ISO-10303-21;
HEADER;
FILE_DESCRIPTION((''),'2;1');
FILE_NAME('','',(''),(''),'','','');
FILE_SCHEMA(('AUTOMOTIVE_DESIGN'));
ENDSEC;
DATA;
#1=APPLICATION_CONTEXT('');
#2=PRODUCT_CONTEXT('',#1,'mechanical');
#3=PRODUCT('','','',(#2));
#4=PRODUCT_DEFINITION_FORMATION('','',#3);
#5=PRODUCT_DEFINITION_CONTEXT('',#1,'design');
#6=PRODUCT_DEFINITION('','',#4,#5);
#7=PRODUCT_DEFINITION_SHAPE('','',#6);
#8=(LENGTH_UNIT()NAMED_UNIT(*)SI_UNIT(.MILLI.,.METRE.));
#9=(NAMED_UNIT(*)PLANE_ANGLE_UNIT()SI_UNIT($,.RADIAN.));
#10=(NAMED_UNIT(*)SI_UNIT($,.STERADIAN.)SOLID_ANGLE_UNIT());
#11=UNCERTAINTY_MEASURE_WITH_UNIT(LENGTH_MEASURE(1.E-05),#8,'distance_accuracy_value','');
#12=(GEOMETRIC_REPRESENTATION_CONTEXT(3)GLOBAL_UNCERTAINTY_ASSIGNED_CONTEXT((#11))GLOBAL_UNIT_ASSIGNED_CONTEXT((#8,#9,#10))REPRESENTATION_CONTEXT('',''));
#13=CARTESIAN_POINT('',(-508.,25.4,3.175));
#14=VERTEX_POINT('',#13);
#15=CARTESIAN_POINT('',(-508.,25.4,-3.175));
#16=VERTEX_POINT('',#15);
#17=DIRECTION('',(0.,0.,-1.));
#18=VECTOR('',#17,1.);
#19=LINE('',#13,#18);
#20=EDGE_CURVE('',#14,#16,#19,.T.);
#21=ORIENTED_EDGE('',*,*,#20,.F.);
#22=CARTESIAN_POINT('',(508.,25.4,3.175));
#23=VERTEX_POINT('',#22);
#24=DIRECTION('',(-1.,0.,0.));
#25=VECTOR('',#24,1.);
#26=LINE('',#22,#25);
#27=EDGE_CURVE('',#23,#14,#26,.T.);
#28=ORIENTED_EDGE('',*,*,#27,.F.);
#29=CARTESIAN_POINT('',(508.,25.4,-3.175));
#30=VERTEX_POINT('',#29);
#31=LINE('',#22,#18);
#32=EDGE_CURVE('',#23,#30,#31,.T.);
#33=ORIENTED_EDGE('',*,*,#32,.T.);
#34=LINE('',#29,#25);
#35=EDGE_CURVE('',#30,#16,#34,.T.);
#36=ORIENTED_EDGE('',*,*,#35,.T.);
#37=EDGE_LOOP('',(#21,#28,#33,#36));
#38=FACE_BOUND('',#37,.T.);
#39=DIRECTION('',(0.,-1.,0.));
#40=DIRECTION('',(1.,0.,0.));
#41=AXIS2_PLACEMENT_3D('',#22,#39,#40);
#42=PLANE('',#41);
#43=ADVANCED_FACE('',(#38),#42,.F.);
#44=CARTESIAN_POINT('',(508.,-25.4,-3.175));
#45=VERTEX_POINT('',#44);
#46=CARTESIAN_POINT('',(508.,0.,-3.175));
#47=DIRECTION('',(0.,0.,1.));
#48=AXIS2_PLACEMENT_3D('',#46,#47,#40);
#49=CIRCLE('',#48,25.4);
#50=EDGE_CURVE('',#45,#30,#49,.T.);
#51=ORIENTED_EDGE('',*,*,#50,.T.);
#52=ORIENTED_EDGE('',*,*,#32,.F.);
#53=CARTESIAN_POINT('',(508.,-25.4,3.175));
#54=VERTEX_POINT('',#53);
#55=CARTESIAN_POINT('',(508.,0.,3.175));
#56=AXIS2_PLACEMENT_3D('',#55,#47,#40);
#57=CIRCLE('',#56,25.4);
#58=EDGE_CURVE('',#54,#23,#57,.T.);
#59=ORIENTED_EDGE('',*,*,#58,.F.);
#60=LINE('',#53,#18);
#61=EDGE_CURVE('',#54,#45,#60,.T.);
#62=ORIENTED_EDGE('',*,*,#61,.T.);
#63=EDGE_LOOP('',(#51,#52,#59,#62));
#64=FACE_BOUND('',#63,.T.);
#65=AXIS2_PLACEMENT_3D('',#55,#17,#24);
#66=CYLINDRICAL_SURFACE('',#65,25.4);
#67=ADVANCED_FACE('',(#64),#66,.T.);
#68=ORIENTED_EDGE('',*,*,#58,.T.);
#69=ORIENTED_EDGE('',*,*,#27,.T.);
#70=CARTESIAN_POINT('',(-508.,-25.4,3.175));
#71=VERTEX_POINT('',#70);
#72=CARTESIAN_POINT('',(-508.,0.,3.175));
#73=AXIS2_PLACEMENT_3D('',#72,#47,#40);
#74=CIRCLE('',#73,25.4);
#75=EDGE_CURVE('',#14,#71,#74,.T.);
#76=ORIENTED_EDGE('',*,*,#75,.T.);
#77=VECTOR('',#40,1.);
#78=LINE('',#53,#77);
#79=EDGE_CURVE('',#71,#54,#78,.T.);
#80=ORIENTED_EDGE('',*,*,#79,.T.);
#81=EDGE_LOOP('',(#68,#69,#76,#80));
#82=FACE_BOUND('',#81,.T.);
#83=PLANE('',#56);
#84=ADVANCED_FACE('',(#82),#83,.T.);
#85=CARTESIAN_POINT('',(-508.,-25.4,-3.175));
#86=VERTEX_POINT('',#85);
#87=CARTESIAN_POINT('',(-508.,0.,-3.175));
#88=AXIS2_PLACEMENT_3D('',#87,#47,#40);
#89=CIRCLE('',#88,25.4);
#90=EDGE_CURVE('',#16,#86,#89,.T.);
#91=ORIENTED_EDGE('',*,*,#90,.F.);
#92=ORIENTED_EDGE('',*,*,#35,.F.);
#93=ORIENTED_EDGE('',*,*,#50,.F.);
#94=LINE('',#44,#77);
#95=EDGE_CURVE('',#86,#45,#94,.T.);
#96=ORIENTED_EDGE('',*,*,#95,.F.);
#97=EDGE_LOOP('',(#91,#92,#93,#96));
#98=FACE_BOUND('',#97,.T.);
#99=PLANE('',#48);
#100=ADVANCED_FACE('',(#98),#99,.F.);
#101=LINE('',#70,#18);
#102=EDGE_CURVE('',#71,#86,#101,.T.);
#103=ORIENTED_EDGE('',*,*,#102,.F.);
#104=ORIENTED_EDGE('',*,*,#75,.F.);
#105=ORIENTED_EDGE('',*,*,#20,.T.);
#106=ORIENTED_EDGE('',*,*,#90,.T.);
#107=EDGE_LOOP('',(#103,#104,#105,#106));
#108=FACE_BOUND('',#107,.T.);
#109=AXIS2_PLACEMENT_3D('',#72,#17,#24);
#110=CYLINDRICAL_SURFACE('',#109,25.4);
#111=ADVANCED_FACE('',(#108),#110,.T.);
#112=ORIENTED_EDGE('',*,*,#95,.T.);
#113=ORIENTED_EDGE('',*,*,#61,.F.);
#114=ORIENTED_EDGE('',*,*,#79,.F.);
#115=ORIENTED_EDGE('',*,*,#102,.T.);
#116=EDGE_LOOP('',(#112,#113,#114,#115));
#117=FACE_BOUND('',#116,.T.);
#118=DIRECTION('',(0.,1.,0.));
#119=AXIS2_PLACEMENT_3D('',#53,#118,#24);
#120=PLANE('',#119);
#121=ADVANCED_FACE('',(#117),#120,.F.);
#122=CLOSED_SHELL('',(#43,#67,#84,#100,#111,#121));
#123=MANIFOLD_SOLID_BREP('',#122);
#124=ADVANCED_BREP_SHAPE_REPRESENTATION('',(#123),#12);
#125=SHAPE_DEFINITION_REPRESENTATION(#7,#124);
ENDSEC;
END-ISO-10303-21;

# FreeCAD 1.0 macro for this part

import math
import FreeCAD as App
import Part
import Sketcher
from FreeCAD import Vector
Q = App.Units.Quantity

doc = App.newDocument("Part")
body = doc.addObject("PartDesign::Body", "Body")

# Sketch on XY plane
sketch1 = body.newObject("Sketcher::SketchObject", "Sketch")
sketch1.AttachmentSupport = (doc.getObject("XY_Plane"), [""])
sketch1.MapMode = "FlatFace"
sketch1.addGeometry(Part.LineSegment(Vector(-508, -25, 0), Vector(508, -25, 0)), False)
sketch1.addGeometry(Part.ArcOfCircle(Part.Circle(Vector(508, 0, 0), Vector(0, 0, 1), 25), math.radians(-90), math.radians(90)), False)
sketch1.addGeometry(Part.LineSegment(Vector(508, 25, 0), Vector(-508, 25, 0)), False)
sketch1.addGeometry(Part.ArcOfCircle(Part.Circle(Vector(-508, 0, 0), Vector(0, 0, 1), 25), math.radians(90), math.radians(270)), False)
sketch1.addConstraint(Sketcher.Constraint("Tangent", 0, 2, 1, 1))
sketch1.addConstraint(Sketcher.Constraint("Tangent", 1, 2, 2, 1))
sketch1.addConstraint(Sketcher.Constraint("Tangent", 2, 2, 3, 1))
sketch1.addConstraint(Sketcher.Constraint("Tangent", 3, 2, 0, 1))
sketch1.addConstraint(Sketcher.Constraint("Horizontal", 0))
sketch1.addConstraint(Sketcher.Constraint("Horizontal", 2))
sketch1.addConstraint(Sketcher.Constraint("Symmetric", 1, 3, 3, 3, -1, 1))
sketch1.addConstraint(Sketcher.Constraint("Radius", 1, Q("1 in")))
sketch1.addConstraint(Sketcher.Constraint("DistanceX", 0, 1, 0, 2, Q("40 in")))
pad1 = body.newObject("PartDesign::Pad", "Pad")
pad1.Profile = sketch1
pad1.Length = Q("0.25 in")
pad1.Midplane = True

doc.recompute()
